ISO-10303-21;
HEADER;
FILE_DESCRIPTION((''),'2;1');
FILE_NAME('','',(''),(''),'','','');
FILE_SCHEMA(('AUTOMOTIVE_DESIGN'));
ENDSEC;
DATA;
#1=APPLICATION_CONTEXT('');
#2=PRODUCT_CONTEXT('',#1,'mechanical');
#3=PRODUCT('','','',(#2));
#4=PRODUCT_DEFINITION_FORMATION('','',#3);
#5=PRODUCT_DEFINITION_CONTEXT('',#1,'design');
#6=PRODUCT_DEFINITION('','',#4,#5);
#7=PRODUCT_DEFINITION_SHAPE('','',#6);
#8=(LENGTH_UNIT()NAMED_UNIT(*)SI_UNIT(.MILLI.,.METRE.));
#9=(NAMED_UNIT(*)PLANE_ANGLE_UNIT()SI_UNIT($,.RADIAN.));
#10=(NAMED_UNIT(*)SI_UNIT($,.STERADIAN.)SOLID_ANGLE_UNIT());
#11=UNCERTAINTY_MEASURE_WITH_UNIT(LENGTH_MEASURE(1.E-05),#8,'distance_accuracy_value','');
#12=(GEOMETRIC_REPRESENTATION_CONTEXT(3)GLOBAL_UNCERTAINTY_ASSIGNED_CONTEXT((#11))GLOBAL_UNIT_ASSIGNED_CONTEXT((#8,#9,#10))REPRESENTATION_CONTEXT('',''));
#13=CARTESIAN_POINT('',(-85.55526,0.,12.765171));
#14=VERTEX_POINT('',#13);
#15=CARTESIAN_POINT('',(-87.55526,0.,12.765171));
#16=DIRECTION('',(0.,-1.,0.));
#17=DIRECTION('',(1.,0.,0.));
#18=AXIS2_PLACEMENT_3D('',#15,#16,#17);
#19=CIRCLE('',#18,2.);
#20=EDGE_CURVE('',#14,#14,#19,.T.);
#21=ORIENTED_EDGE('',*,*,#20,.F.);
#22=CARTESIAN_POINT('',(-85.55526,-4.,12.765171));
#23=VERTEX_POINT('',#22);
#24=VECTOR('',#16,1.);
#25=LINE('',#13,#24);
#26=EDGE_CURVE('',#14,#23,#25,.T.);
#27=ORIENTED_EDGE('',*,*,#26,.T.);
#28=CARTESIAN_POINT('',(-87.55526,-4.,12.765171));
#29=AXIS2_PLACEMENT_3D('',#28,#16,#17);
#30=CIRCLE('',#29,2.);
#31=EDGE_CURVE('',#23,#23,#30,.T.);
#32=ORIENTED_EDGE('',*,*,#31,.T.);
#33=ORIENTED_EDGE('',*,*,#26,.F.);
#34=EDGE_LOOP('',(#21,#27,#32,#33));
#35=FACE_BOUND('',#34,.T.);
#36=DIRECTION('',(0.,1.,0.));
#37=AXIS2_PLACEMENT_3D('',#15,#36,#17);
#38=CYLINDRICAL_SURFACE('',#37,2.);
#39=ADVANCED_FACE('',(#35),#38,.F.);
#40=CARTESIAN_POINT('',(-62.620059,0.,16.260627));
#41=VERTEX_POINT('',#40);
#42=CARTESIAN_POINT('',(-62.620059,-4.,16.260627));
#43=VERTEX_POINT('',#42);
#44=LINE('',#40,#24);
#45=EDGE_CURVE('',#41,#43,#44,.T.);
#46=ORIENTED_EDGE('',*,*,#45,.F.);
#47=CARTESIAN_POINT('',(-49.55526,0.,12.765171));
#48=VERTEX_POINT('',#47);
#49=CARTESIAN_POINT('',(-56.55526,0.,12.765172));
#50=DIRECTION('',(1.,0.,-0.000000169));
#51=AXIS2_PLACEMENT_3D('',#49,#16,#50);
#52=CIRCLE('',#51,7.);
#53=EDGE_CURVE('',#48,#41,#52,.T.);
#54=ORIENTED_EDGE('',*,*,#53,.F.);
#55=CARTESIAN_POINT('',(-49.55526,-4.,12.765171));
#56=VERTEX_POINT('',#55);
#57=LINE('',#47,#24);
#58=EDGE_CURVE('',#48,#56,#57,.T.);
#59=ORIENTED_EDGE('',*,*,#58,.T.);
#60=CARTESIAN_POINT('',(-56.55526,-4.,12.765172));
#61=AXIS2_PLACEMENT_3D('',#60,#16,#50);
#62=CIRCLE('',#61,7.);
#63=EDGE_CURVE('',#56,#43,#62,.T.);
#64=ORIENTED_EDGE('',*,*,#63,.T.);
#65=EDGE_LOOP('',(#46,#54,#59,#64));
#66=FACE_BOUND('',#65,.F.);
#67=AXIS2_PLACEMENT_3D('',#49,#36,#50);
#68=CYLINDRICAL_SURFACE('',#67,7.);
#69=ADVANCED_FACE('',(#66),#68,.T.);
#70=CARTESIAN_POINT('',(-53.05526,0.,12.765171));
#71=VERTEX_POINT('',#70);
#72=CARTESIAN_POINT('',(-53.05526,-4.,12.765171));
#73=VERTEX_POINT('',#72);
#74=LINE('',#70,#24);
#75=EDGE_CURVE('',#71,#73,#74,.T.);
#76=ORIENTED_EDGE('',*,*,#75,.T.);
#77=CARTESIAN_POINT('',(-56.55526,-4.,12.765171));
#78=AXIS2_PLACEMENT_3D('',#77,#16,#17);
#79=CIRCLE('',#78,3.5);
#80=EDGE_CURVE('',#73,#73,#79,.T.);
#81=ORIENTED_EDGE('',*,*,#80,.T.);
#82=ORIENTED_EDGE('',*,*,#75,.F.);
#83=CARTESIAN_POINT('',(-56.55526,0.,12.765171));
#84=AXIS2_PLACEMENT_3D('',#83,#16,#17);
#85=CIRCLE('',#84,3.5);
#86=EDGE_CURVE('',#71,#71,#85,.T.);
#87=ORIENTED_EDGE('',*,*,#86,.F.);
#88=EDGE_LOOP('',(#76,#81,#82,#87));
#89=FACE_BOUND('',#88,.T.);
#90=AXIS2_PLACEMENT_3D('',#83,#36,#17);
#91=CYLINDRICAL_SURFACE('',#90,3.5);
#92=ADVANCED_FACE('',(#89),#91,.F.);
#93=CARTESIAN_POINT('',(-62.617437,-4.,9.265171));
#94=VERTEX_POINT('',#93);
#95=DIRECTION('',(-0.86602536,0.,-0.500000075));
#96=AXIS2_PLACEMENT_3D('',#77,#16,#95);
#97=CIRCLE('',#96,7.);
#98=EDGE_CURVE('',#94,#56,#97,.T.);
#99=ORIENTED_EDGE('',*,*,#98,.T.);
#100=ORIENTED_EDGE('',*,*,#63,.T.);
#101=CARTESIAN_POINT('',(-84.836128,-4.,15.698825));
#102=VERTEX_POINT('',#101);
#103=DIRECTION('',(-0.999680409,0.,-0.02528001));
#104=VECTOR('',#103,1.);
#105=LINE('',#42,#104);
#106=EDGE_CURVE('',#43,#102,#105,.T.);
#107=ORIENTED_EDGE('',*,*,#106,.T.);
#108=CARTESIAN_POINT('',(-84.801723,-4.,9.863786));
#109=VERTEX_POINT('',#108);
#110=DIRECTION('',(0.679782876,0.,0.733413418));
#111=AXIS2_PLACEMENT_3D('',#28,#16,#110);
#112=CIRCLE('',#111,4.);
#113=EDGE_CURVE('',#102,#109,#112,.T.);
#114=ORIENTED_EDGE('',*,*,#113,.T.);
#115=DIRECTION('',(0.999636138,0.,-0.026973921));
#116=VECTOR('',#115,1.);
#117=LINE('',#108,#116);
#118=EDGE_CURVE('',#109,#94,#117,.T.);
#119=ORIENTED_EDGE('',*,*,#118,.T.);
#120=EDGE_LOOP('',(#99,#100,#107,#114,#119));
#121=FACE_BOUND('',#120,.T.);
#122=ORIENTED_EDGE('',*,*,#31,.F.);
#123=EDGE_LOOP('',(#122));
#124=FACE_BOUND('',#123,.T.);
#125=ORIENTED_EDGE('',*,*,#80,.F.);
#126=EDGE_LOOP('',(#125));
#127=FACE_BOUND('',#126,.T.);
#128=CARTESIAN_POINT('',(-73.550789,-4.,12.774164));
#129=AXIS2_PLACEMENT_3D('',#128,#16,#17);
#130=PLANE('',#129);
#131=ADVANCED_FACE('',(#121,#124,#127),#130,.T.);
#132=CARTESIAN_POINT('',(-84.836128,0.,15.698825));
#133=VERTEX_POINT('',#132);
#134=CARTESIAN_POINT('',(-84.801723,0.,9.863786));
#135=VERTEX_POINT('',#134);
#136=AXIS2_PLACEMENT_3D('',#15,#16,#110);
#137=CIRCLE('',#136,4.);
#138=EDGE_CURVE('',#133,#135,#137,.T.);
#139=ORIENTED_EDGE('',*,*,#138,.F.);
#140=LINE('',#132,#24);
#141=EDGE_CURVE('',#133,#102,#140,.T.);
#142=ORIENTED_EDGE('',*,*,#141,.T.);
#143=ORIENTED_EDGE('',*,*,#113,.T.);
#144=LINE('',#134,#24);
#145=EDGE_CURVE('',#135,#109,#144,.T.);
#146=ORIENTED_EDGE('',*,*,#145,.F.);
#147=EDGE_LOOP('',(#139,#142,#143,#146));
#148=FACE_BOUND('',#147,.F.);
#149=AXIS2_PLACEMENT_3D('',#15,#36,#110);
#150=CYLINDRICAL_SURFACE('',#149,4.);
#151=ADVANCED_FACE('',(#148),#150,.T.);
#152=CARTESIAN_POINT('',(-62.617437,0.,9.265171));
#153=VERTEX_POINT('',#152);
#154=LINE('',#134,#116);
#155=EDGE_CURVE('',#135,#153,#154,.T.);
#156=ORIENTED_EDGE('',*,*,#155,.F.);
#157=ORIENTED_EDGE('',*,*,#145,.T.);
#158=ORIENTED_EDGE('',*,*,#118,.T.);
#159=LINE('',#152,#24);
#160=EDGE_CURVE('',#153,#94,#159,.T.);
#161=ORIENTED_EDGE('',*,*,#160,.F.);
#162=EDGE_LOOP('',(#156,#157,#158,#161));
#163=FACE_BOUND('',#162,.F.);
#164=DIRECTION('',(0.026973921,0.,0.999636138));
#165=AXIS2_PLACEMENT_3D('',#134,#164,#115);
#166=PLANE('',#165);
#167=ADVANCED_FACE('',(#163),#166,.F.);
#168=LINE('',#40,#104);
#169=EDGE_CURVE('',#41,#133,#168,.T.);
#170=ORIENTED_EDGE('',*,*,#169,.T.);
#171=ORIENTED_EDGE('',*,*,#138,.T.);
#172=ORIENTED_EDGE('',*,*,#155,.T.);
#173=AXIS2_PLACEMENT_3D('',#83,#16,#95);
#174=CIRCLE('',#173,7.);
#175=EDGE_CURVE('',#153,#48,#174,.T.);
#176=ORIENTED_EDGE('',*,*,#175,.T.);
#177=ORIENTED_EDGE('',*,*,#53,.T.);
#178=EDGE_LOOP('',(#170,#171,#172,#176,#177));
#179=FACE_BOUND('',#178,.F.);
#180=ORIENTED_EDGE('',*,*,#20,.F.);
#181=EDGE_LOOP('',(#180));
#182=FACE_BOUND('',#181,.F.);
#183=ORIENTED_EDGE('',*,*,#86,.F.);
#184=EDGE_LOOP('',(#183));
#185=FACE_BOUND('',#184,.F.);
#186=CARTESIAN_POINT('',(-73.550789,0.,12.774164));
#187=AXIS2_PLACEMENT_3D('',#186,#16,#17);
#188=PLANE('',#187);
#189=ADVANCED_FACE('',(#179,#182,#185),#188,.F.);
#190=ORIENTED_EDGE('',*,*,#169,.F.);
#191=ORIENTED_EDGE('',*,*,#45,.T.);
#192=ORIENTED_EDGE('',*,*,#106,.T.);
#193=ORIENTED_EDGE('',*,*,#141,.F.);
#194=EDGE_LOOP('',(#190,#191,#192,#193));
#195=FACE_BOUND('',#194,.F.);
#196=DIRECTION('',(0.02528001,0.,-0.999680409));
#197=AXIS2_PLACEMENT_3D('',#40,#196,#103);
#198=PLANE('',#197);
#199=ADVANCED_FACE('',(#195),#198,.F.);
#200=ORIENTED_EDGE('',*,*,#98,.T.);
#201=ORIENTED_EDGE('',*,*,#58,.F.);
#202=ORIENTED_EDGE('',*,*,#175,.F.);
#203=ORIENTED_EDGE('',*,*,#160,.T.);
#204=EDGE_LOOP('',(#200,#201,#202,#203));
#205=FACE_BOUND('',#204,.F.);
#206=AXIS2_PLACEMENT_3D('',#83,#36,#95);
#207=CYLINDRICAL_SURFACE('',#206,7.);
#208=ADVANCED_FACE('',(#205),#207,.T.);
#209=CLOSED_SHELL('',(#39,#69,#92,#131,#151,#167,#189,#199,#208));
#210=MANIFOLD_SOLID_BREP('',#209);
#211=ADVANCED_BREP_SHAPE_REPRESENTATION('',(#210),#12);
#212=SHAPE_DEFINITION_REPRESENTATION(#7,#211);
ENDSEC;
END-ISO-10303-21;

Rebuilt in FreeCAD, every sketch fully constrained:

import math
import FreeCAD as App
import Part
import Sketcher
Q = App.Units.Quantity

doc = App.newDocument("Part")
body = doc.addObject("PartDesign::Body", "Body")

# Sketch on XZ plane
sketch1 = body.newObject("Sketcher::SketchObject", "Sketch")
sketch1.AttachmentSupport = (doc.getObject("XZ_Plane"), [""])
sketch1.MapMode = "FlatFace"
sketch1.addGeometry(Part.LineSegment(App.Vector(-84.8, 9.9, 0), App.Vector(-62.6, 9.3, 0)), False)
sketch1.addGeometry(Part.ArcOfCircle(Part.Circle(App.Vector(-56.6, 12.8, 0), App.Vector(0, 0, 1), 7), math.radians(-150), math.radians(0)), False)
sketch1.addGeometry(Part.ArcOfCircle(Part.Circle(App.Vector(-56.6, 12.8, 0), App.Vector(0, 0, 1), 7), math.radians(0), math.radians(150)), False)
sketch1.addGeometry(Part.LineSegment(App.Vector(-62.6, 16.3, 0), App.Vector(-84.8, 15.7, 0)), False)
sketch1.addGeometry(Part.ArcOfCircle(Part.Circle(App.Vector(-87.6, 12.8, 0), App.Vector(0, 0, 1), 4), math.radians(47), math.radians(314)), False)
sketch1.addGeometry(Part.Circle(App.Vector(-87.6, 12.8, 0), App.Vector(0, 0, 1), 2), False)
sketch1.addGeometry(Part.Circle(App.Vector(-56.6, 12.8, 0), App.Vector(0, 0, 1), 3.5), False)
sketch1.addConstraint(Sketcher.Constraint("Coincident", 0, 2, 1, 1))
sketch1.addConstraint(Sketcher.Constraint("Tangent", 1, 2, 2, 1))
sketch1.addConstraint(Sketcher.Constraint("Coincident", 2, 2, 3, 1))
sketch1.addConstraint(Sketcher.Constraint("Coincident", 3, 2, 4, 1))
sketch1.addConstraint(Sketcher.Constraint("Coincident", 4, 2, 0, 1))
sketch1.addConstraint(Sketcher.Constraint("Coincident", 5, 3, 4, 3))
sketch1.addConstraint(Sketcher.Constraint("Coincident", 6, 3, 1, 3))
sketch1.addConstraint(Sketcher.Constraint("Equal", 1, 2))
sketch1.addConstraint(Sketcher.Constraint("Horizontal", 2, 3, 4, 3))
sketch1.addConstraint(Sketcher.Constraint("Horizontal", 6, 3, 1, 2))
sketch1.addConstraint(Sketcher.Constraint("Diameter", 5, Q("4 mm")))
sketch1.addConstraint(Sketcher.Constraint("Diameter", 6, Q("7 mm")))
sketch1.addConstraint(Sketcher.Constraint("Radius", 1, Q("7 mm")))
sketch1.addConstraint(Sketcher.Constraint("Radius", 4, Q("4 mm")))
sketch1.addConstraint(Sketcher.Constraint("DistanceX", 4, 3, 1, 3, Q("31 mm")))
sketch1.addConstraint(Sketcher.Constraint("DistanceY", 0, 2, 6, 3, Q("3.5 mm")))
sketch1.addConstraint(Sketcher.Constraint("DistanceX", 2, 2, 2, 3, Q("6.064799 mm")))
sketch1.addConstraint(Sketcher.Constraint("DistanceY", 3, 2, 2, 2, Q("0.561802 mm")))
sketch1.addConstraint(Sketcher.Constraint("Distance", 0, Q("22.192361 mm")))
sketch1.addConstraint(Sketcher.Constraint("DistanceX", 1, 3, -1, 1, Q("56.55526 mm")))
sketch1.addConstraint(Sketcher.Constraint("DistanceY", -1, 1, 1, 3, Q("12.765171 mm")))
pad1 = body.newObject("PartDesign::Pad", "Pad")
pad1.Profile = sketch1
pad1.Length = 4

doc.recompute()
